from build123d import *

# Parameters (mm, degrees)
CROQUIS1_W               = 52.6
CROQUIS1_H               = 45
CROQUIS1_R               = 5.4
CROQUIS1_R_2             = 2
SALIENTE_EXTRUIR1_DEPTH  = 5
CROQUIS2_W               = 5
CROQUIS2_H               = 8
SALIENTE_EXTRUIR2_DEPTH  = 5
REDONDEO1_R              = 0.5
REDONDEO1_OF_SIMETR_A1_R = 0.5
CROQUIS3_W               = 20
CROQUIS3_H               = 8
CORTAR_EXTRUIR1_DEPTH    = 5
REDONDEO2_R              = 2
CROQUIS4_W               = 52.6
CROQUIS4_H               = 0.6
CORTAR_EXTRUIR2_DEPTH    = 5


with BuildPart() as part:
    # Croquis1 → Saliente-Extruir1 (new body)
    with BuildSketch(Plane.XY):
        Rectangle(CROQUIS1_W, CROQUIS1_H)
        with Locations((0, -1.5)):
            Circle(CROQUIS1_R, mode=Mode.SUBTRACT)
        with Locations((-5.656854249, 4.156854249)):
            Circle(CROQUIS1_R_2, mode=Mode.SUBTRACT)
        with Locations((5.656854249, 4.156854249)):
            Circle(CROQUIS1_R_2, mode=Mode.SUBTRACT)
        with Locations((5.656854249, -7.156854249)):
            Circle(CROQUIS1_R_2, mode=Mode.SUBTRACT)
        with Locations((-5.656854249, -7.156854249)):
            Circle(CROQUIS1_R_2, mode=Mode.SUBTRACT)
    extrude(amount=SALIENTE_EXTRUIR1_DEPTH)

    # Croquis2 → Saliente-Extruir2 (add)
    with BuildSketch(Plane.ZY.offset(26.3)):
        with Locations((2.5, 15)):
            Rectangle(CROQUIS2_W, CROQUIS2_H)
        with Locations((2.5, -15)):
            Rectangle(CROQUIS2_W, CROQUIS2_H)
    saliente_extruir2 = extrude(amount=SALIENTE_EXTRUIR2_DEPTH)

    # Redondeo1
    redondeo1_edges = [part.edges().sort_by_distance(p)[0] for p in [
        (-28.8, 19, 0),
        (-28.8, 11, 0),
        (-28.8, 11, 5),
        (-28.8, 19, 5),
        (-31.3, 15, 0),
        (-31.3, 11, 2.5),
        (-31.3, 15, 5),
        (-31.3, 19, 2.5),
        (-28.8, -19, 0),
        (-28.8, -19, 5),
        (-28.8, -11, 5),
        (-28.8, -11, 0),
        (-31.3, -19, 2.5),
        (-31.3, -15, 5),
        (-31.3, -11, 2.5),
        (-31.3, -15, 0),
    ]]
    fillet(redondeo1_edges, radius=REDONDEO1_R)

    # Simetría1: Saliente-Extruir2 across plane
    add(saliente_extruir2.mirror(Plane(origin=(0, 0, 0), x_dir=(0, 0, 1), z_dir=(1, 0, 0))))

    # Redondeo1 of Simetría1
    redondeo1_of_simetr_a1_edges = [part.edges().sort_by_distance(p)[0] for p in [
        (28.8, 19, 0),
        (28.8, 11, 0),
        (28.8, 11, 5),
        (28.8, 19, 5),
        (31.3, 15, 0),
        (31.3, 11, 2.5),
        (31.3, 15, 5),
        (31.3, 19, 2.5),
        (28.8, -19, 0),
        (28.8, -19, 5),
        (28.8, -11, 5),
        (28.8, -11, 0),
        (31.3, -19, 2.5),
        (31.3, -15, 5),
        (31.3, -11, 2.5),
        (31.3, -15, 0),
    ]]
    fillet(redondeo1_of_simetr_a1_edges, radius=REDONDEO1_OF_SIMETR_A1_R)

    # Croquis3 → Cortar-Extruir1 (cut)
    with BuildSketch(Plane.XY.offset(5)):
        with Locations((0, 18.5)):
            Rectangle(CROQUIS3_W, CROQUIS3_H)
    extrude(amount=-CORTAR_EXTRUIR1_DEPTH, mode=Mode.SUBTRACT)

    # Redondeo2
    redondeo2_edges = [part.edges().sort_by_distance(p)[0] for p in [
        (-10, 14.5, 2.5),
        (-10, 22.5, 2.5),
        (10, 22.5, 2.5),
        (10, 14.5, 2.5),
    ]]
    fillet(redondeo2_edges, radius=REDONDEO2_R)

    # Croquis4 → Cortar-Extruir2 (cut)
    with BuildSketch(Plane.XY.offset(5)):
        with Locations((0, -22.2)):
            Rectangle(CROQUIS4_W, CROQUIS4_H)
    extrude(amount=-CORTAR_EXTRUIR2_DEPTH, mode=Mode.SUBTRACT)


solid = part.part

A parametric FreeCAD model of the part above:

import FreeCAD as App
import Part
import Sketcher

V = App.Vector
Q = App.Units.Quantity


def edges_at(feature, points):
    """Names of the edges that pass closest to the given points."""
    edges = feature.Shape.Edges
    near = lambda p: min(range(len(edges)), key=lambda i: edges[i].distToShape(Part.Vertex(*p))[0])
    return sorted({f"Edge{near(p) + 1}" for p in points})


def add_polygon(sketch, points):
    """Adds a closed chain of lines whose ends are joined by coincident constraints."""
    first, n = sketch.GeometryCount, len(points)
    for a, b in zip(points, points[1:] + points[:1]):
        sketch.addGeometry(Part.LineSegment(App.Vector(*a, 0), App.Vector(*b, 0)), False)
    for i in range(n):
        sketch.addConstraint(Sketcher.Constraint("Coincident", first + i, 2, first + (i + 1) % n, 1))

doc = App.newDocument("Part")
body = doc.addObject("PartDesign::Body", "Body")

# Sketch on XY plane
sketch1 = doc.addObject("Sketcher::SketchObject", "Sketch")
body.addObject(sketch1)
sketch1.AttachmentSupport = (doc.XY_Plane, [""])
sketch1.MapMode = "FlatFace"
add_polygon(sketch1, [(-26.3, 22.5), (-26.3, -22.5), (26.3, -22.5), (26.3, 22.5)])  # lines 0-3
sketch1.addGeometry(Part.Circle(V(-5.7, -7.2, 0), V(0, 0, 1), 2), False)  # 4
sketch1.addGeometry(Part.Circle(V(5.7, -7.2, 0), V(0, 0, 1), 2), False)  # 5
sketch1.addGeometry(Part.Circle(V(-5.7, 4.2, 0), V(0, 0, 1), 2), False)  # 6
sketch1.addGeometry(Part.Circle(V(0, -1.5, 0), V(0, 0, 1), 5.4), False)  # 7
sketch1.addGeometry(Part.Circle(V(5.7, 4.2, 0), V(0, 0, 1), 2), False)  # 8
sketch1.addConstraint([
    Sketcher.Constraint("Vertical", 0),
    Sketcher.Constraint("Horizontal", 1),
    Sketcher.Constraint("Vertical", 2),
    Sketcher.Constraint("Horizontal", 3),
    Sketcher.Constraint("Equal", 4, 5),
    Sketcher.Constraint("Equal", 5, 6),
    Sketcher.Constraint("Equal", 6, 8),
    Sketcher.Constraint("Symmetric", 0, 2, 2, 2, -1, 1),
    Sketcher.Constraint("Symmetric", 4, 3, 5, 3, -2),
    Sketcher.Constraint("Symmetric", 6, 3, 8, 3, -2),
    Sketcher.Constraint("PointOnObject", 7, 3, -2),
    Sketcher.Constraint("Vertical", 4, 3, 6, 3),
    Sketcher.Constraint("Diameter", 4, Q("4 mm")),
    Sketcher.Constraint("Diameter", 7, Q("10.8 mm")),
    Sketcher.Constraint("DistanceY", 0, 2, 0, 1, Q("45 mm")),
    Sketcher.Constraint("DistanceX", 1, 1, 1, 2, Q("52.6 mm")),
    Sketcher.Constraint("DistanceY", 0, 2, 7, 3, Q("21 mm")),
    Sketcher.Constraint("DistanceX", 4, 3, 5, 3, Q("11.313708 mm")),
    Sketcher.Constraint("DistanceY", 4, 3, 6, 3, Q("11.313708 mm")),
    Sketcher.Constraint("DistanceY", 4, 3, -1, 1, Q("7.156854 mm")),
])
pad1 = doc.addObject("PartDesign::Pad", "Pad")
body.addObject(pad1)
pad1.Profile = sketch1
pad1.Length = 5

# Sketch on YZ plane
sketch2 = doc.addObject("Sketcher::SketchObject", "Sketch001")
body.addObject(sketch2)
sketch2.AttachmentSupport = (doc.YZ_Plane, [""])
sketch2.MapMode = "FlatFace"
sketch2.AttachmentOffset = App.Placement(V(0, 0, -26.3), App.Rotation())
add_polygon(sketch2, [(19, 0), (11, 0), (11, 5), (19, 5)])  # lines 0-3
add_polygon(sketch2, [(-11, 0), (-19, 0), (-19, 5), (-11, 5)])  # lines 4-7
sketch2.addConstraint([
    Sketcher.Constraint("Horizontal", 0),
    Sketcher.Constraint("Vertical", 1),
    Sketcher.Constraint("Horizontal", 2),
    Sketcher.Constraint("Vertical", 3),
    Sketcher.Constraint("Horizontal", 4),
    Sketcher.Constraint("Vertical", 5),
    Sketcher.Constraint("Horizontal", 6),
    Sketcher.Constraint("Vertical", 7),
    Sketcher.Constraint("Symmetric", 3, 2, 4, 2, -1, 1),
    Sketcher.Constraint("Symmetric", 1, 2, 6, 2, -2),
    Sketcher.Constraint("PointOnObject", 0, 2, -1),
    Sketcher.Constraint("DistanceX", 0, 2, 0, 1, Q("8 mm")),
    Sketcher.Constraint("DistanceY", 1, 1, 1, 2, Q("5 mm")),
    Sketcher.Constraint("DistanceX", -1, 1, 0, 2, Q("11 mm")),
])
pad2 = doc.addObject("PartDesign::Pad", "Pad001")
body.addObject(pad2)
pad2.Profile = sketch2
pad2.Length = 5
pad2.Reversed = True
doc.recompute()

fillet = doc.addObject("PartDesign::Fillet", "Fillet")
body.addObject(fillet)
fillet.Base = (pad2, edges_at(pad2, [
    (-28.8, 19, 0),
    (-28.8, 11, 0),
    (-28.8, 11, 5),
    (-28.8, 19, 5),
    (-31.3, 15, 0),
    (-31.3, 11, 2.5),
    (-31.3, 15, 5),
    (-31.3, 19, 2.5),
    (-28.8, -19, 0),
    (-28.8, -19, 5),
    (-28.8, -11, 5),
    (-28.8, -11, 0),
    (-31.3, -19, 2.5),
    (-31.3, -15, 5),
    (-31.3, -11, 2.5),
    (-31.3, -15, 0),
]))
fillet.Radius = 0.5
doc.recompute()

mirrored = doc.addObject("PartDesign::Mirrored", "Mirrored")
body.addObject(mirrored)
mirrored.Originals = [pad2]
mirrored.MirrorPlane = (doc.YZ_Plane, [""])
body.Tip = mirrored
doc.recompute()

fillet2 = doc.addObject("PartDesign::Fillet", "Fillet001")
body.addObject(fillet2)
fillet2.Base = (mirrored, edges_at(mirrored, [
    (28.8, 19, 0),
    (28.8, 11, 0),
    (28.8, 11, 5),
    (28.8, 19, 5),
    (31.3, 15, 0),
    (31.3, 11, 2.5),
    (31.3, 15, 5),
    (31.3, 19, 2.5),
    (28.8, -19, 0),
    (28.8, -19, 5),
    (28.8, -11, 5),
    (28.8, -11, 0),
    (31.3, -19, 2.5),
    (31.3, -15, 5),
    (31.3, -11, 2.5),
    (31.3, -15, 0),
]))
fillet2.Radius = 0.5

# Sketch on XY plane
sketch3 = doc.addObject("Sketcher::SketchObject", "Sketch002")
body.addObject(sketch3)
sketch3.AttachmentSupport = (doc.XY_Plane, [""])
sketch3.MapMode = "FlatFace"
sketch3.AttachmentOffset = App.Placement(V(0, 0, 5), App.Rotation())
add_polygon(sketch3, [(-10, 22), (-10, 14), (10, 14), (10, 22)])  # lines 0-3
sketch3.addConstraint([
    Sketcher.Constraint("Vertical", 0),
    Sketcher.Constraint("Horizontal", 1),
    Sketcher.Constraint("Vertical", 2),
    Sketcher.Constraint("Horizontal", 3),
    Sketcher.Constraint("DistanceX", 1, 1, 1, 2, Q("20 mm")),
    Sketcher.Constraint("DistanceY", 0, 2, 0, 1, Q("8 mm")),
    Sketcher.Constraint("DistanceX", 0, 2, -1, 1, Q("10 mm")),
    Sketcher.Constraint("DistanceY", -1, 1, 0, 2, Q("14.5 mm")),
])
pocket1 = doc.addObject("PartDesign::Pocket", "Pocket")
body.addObject(pocket1)
pocket1.Profile = sketch3
pocket1.Length = 5
doc.recompute()

fillet3 = doc.addObject("PartDesign::Fillet", "Fillet002")
body.addObject(fillet3)
fillet3.Base = (pocket1, edges_at(pocket1, [
    (-10, 14.5, 2.5),
    (-10, 22.5, 2.5),
    (10, 22.5, 2.5),
    (10, 14.5, 2.5),
]))
fillet3.Radius = 2

# Sketch on XY plane
sketch4 = doc.addObject("Sketcher::SketchObject", "Sketch003")
body.addObject(sketch4)
sketch4.AttachmentSupport = (doc.XY_Plane, [""])
sketch4.MapMode = "FlatFace"
sketch4.AttachmentOffset = App.Placement(V(0, 0, 5), App.Rotation())
add_polygon(sketch4, [(-26.3, -21.9), (-26.3, -22.5), (26.3, -22.5), (26.3, -21.9)])  # lines 0-3
sketch4.addConstraint([
    Sketcher.Constraint("Vertical", 0),
    Sketcher.Constraint("Horizontal", 1),
    Sketcher.Constraint("Vertical", 2),
    Sketcher.Constraint("Horizontal", 3),
    Sketcher.Constraint("DistanceX", 1, 1, 1, 2, Q("52.6 mm")),
    Sketcher.Constraint("DistanceY", 0, 2, 0, 1, Q("0.6 mm")),
    Sketcher.Constraint("DistanceX", 0, 2, -1, 1, Q("26.3 mm")),
    Sketcher.Constraint("DistanceY", 0, 2, -1, 1, Q("22.5 mm")),
])
pocket2 = doc.addObject("PartDesign::Pocket", "Pocket001")
body.addObject(pocket2)
pocket2.Profile = sketch4
pocket2.Length = 5

doc.recompute()
